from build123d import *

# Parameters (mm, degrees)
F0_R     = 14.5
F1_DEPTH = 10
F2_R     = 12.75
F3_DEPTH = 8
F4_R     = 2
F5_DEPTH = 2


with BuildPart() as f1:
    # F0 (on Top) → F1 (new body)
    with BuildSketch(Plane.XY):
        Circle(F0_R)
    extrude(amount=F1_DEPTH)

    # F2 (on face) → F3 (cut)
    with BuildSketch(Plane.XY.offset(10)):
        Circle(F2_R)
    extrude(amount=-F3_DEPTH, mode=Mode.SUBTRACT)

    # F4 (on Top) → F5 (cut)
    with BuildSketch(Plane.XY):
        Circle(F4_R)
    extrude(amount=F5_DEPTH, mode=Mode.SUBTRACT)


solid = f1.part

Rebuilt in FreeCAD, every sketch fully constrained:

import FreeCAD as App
import Part
import Sketcher
from FreeCAD import Vector
Q = App.Units.Quantity

doc = App.newDocument("Part")
body = doc.addObject("PartDesign::Body", "Body")

# Sketch on XY plane
sketch1 = body.newObject("Sketcher::SketchObject", "Sketch")
sketch1.AttachmentSupport = (doc.getObject("XY_Plane"), [""])
sketch1.MapMode = "FlatFace"
sketch1.addGeometry(Part.Circle(Vector(0, 0, 0), Vector(0, 0, 1), 14.5), False)
sketch1.addConstraint([
    Sketcher.Constraint("Coincident", 0, 3, -1, 1),
    Sketcher.Constraint("Diameter", 0, Q("29 mm")),
])
pad1 = body.newObject("PartDesign::Pad", "Pad")
pad1.Profile = sketch1
pad1.Length = 10

# Sketch on XY plane
sketch2 = body.newObject("Sketcher::SketchObject", "Sketch001")
sketch2.AttachmentSupport = (doc.getObject("XY_Plane"), [""])
sketch2.MapMode = "FlatFace"
sketch2.AttachmentOffset = App.Placement(Vector(0, 0, 10), App.Rotation())
sketch2.addGeometry(Part.Circle(Vector(0, 0, 0), Vector(0, 0, 1), 12.75), False)
sketch2.addConstraint([
    Sketcher.Constraint("Coincident", 0, 3, -1, 1),
    Sketcher.Constraint("Diameter", 0, Q("25.5 mm")),
])
pocket1 = body.newObject("PartDesign::Pocket", "Pocket")
pocket1.Profile = sketch2
pocket1.Length = 8

# Sketch on XY plane
sketch3 = body.newObject("Sketcher::SketchObject", "Sketch002")
sketch3.AttachmentSupport = (doc.getObject("XY_Plane"), [""])
sketch3.MapMode = "FlatFace"
sketch3.addGeometry(Part.Circle(Vector(0, 0, 0), Vector(0, 0, 1), 2), False)
sketch3.addConstraint([
    Sketcher.Constraint("Coincident", 0, 3, -1, 1),
    Sketcher.Constraint("Diameter", 0, Q("4 mm")),
])
pocket2 = body.newObject("PartDesign::Pocket", "Pocket001")
pocket2.Profile = sketch3
pocket2.Length = 2
pocket2.Reversed = True

doc.recompute()
